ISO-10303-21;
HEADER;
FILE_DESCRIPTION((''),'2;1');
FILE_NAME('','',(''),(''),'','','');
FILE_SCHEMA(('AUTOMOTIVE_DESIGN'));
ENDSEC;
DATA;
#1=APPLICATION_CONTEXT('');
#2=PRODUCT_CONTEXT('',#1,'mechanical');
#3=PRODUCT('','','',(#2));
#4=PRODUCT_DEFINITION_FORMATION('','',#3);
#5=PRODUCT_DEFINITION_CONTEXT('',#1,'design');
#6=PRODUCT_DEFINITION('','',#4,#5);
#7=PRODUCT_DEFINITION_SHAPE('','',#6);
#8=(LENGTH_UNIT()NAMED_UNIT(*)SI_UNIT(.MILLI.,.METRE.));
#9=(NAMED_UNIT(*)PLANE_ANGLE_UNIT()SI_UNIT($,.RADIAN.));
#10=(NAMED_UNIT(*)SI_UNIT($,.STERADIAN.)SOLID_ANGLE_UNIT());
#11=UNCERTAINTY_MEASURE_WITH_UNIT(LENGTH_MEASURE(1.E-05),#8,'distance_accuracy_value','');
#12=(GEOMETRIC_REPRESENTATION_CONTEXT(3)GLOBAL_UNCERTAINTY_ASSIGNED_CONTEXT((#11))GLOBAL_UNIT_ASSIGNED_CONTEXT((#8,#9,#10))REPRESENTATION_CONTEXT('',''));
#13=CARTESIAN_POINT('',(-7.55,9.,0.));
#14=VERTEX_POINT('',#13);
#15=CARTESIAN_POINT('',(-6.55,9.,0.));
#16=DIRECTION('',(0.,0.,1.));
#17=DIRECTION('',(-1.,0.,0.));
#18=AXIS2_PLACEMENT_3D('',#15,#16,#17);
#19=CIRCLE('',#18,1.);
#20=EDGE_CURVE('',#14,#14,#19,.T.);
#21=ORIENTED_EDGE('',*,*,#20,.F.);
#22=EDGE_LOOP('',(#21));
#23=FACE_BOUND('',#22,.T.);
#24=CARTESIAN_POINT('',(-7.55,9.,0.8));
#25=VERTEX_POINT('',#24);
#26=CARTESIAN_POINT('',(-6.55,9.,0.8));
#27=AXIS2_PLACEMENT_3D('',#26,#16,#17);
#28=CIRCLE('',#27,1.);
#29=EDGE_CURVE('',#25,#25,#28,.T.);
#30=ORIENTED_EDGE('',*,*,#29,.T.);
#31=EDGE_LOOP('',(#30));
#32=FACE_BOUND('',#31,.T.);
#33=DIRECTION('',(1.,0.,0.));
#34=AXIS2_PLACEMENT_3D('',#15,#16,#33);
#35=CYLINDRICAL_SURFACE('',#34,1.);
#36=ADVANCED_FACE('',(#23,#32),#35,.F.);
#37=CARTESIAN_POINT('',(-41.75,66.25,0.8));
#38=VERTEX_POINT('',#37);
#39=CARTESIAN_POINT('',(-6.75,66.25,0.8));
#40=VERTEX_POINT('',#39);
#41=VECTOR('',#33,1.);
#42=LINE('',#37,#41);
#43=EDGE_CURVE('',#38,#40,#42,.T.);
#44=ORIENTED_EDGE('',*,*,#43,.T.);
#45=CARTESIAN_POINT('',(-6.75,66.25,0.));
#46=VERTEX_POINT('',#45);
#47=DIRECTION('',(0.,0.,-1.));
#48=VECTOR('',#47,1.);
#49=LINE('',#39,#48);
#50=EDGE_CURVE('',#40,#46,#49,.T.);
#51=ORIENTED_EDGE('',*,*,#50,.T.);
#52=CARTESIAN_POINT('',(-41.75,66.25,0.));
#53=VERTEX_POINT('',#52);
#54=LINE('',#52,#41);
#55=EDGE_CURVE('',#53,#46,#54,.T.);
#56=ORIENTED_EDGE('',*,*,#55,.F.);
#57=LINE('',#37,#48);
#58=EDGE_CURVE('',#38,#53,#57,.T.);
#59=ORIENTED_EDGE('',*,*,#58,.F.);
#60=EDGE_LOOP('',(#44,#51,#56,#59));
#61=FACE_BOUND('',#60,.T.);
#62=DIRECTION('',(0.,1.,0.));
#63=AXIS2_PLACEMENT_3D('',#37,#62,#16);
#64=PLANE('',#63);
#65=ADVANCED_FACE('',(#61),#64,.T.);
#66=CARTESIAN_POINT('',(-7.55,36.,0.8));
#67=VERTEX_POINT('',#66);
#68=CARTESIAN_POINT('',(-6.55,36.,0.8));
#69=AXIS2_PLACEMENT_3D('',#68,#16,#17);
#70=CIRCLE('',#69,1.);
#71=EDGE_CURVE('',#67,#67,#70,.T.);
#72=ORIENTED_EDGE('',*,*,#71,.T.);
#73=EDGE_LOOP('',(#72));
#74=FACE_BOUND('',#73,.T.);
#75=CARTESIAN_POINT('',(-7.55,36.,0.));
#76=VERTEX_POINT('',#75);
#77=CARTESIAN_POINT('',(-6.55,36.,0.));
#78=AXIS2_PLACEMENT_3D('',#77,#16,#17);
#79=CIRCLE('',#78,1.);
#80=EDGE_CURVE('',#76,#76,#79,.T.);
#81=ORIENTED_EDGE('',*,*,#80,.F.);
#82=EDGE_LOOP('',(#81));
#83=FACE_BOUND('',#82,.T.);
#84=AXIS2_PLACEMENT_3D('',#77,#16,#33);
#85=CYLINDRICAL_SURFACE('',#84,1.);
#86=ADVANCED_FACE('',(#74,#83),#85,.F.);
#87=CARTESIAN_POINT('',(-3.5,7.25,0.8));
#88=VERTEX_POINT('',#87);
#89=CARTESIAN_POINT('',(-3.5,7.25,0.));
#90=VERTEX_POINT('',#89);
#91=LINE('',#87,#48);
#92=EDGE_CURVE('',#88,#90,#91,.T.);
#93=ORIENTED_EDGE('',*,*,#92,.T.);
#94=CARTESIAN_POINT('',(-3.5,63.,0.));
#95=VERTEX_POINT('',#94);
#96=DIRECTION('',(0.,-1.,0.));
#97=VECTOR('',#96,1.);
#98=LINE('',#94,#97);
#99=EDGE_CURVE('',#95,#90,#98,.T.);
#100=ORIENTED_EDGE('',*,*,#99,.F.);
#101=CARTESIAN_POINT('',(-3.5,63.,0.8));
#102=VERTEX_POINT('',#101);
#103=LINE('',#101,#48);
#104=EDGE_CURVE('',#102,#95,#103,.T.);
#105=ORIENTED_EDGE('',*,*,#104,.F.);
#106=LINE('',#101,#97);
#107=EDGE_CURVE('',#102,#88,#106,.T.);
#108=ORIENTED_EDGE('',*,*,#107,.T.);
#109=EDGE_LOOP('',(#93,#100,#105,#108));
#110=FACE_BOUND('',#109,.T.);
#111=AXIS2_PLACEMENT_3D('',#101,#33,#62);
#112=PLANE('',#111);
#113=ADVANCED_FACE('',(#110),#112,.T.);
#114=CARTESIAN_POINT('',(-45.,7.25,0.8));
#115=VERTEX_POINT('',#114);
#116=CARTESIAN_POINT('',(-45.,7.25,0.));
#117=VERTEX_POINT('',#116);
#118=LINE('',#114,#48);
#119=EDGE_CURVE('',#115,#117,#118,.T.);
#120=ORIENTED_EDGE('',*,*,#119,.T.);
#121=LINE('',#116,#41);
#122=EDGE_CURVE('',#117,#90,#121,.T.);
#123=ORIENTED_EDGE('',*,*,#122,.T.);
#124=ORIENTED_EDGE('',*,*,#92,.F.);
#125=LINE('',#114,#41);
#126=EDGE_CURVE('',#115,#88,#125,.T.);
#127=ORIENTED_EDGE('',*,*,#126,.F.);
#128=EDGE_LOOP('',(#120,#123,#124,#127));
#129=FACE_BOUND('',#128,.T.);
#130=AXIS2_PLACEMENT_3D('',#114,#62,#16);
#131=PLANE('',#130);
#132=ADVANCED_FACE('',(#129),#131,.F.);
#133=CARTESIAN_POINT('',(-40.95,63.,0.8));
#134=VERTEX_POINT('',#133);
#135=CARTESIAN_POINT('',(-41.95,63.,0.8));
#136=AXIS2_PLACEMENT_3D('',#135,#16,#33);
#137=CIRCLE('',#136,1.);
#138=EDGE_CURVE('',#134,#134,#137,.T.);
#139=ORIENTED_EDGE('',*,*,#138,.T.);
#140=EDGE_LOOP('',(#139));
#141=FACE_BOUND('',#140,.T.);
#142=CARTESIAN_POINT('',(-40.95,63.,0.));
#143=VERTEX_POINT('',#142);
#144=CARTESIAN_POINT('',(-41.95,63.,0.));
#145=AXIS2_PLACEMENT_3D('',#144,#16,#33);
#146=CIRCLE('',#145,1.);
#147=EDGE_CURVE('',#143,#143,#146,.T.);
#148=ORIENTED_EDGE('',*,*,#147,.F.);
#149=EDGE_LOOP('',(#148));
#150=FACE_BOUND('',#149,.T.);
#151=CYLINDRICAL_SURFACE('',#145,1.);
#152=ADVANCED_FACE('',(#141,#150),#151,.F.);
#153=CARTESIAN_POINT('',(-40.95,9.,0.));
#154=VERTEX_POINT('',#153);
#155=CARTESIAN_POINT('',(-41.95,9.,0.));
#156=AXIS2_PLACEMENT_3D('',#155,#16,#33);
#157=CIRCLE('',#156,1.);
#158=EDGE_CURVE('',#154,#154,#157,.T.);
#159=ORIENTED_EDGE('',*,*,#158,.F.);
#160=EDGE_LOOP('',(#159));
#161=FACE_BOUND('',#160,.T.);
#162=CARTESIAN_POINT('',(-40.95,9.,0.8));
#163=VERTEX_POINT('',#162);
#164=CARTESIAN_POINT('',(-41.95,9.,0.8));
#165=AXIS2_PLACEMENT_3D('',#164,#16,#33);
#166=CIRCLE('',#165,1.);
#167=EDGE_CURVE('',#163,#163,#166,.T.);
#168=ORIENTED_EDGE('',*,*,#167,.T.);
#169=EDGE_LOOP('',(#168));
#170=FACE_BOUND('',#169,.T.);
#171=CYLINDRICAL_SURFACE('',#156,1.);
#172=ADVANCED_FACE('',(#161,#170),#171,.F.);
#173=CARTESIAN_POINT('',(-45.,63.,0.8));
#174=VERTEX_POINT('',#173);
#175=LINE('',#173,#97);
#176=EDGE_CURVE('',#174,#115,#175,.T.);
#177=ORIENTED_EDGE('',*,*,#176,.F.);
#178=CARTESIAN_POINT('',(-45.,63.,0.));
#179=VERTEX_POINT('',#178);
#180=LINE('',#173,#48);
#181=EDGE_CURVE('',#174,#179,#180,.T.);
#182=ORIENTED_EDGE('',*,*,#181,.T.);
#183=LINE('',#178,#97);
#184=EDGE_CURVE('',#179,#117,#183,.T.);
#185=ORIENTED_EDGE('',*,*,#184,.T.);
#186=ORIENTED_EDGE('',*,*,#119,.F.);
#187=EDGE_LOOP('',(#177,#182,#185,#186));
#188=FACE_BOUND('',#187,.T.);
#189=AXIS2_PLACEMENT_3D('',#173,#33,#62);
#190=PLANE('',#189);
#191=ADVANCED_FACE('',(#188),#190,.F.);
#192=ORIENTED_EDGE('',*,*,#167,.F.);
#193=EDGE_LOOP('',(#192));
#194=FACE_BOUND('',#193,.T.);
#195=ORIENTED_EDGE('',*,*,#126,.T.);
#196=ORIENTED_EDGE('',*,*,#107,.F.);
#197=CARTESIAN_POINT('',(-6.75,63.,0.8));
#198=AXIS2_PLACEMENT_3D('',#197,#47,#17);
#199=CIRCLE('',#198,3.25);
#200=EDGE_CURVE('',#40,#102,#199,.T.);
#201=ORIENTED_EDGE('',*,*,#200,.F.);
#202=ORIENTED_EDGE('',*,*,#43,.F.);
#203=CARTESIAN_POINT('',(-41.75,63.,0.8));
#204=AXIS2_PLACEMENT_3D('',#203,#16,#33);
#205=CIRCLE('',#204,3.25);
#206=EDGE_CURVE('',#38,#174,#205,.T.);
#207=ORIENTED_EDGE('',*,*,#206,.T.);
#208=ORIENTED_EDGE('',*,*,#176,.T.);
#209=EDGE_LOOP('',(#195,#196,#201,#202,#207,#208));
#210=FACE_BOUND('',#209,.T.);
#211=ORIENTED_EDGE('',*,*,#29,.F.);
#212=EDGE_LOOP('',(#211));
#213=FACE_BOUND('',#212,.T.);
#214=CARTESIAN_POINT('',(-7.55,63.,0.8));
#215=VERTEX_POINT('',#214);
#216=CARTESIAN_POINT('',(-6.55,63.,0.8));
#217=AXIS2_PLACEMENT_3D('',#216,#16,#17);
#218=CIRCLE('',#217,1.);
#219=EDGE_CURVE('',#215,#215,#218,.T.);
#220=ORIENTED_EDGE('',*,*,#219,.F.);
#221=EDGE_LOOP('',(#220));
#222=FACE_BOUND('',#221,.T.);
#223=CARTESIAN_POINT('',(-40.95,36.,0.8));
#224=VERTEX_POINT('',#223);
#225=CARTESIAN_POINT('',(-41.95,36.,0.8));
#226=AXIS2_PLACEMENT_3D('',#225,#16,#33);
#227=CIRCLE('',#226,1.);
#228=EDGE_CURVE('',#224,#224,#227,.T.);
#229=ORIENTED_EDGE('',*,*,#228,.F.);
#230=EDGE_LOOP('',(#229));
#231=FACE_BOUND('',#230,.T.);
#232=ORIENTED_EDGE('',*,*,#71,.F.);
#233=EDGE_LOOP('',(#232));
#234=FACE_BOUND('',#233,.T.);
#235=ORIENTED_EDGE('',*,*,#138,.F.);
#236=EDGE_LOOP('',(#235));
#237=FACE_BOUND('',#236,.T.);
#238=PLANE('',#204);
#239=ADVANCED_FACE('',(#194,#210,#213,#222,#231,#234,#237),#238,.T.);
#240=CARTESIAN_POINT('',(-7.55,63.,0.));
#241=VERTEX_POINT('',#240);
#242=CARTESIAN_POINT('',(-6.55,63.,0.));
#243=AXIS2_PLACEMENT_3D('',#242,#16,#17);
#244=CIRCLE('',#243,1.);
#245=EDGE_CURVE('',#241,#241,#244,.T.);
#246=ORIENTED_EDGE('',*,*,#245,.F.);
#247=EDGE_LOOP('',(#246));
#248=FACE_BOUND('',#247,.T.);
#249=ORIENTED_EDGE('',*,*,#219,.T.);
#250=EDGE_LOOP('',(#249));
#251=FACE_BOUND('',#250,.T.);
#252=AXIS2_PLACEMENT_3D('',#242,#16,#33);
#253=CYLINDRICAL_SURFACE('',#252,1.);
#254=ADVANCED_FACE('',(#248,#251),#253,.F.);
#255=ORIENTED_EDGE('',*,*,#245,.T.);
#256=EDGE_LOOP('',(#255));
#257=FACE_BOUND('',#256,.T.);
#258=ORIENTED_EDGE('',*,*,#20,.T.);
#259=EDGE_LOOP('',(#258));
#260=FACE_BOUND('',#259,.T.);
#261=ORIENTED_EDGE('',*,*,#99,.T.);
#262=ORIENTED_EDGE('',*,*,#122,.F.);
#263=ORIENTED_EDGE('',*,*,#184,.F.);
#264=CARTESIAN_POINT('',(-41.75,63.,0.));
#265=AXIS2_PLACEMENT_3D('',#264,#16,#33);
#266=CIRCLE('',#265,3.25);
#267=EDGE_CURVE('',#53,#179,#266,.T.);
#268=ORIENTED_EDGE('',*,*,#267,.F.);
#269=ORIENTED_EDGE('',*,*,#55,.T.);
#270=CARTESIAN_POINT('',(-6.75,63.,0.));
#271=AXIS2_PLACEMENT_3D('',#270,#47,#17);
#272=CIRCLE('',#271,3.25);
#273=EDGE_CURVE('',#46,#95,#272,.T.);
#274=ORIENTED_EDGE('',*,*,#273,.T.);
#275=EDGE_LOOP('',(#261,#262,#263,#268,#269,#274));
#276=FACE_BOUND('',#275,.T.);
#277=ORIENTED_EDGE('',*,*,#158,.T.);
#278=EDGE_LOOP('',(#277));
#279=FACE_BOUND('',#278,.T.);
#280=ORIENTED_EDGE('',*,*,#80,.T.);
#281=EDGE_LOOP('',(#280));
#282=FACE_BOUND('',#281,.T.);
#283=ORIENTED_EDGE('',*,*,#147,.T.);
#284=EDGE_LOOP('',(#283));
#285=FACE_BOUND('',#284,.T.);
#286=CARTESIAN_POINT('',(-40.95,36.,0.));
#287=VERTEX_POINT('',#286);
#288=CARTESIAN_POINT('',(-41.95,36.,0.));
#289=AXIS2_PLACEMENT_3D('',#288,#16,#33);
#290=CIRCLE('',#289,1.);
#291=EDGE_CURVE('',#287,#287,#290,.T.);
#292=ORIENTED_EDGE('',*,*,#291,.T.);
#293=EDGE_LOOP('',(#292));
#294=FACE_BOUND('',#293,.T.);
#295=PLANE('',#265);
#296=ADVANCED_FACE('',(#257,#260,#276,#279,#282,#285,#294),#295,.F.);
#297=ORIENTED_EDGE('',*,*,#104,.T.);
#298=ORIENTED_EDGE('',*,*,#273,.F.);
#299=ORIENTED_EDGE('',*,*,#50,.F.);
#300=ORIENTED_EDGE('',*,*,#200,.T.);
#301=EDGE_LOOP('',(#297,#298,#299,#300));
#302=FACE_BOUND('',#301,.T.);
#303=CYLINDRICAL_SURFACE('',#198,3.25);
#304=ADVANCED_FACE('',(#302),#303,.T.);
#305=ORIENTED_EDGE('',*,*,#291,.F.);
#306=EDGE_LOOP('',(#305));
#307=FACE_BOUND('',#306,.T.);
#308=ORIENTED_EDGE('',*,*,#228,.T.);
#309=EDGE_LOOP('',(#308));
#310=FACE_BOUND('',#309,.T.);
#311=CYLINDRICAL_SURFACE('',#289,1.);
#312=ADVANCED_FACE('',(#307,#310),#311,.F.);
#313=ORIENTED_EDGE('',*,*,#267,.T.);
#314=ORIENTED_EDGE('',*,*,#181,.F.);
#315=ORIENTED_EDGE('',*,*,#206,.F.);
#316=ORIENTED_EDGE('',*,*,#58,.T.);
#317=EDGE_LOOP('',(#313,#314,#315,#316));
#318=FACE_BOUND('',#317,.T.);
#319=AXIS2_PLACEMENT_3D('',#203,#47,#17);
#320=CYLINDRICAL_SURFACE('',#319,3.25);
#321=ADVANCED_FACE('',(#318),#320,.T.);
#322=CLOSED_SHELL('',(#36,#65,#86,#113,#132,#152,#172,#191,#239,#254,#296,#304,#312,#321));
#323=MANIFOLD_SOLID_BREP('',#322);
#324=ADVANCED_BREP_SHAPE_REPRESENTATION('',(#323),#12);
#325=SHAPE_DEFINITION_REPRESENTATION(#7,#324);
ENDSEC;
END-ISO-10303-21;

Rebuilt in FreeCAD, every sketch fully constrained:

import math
import FreeCAD as App
import Part
import Sketcher

V = App.Vector
Q = App.Units.Quantity

doc = App.newDocument("Part")
body = doc.addObject("PartDesign::Body", "Body")

# Sketch on XY plane
sketch1 = body.newObject("Sketcher::SketchObject", "Sketch")
sketch1.AttachmentSupport = (doc.getObject("XY_Plane"), [""])
sketch1.MapMode = "FlatFace"
sketch1.addGeometry([
    Part.LineSegment(V(-6.75, 66.25, 0), V(-41.75, 66.25, 0)),  # 0
    Part.ArcOfCircle(Part.Circle(V(-41.75, 63, 0), V(0, 0, 1), 3.25), math.radians(90), math.radians(180)),  # 1
    Part.LineSegment(V(-45, 63, 0), V(-45, 7.25, 0)),  # 2
    Part.LineSegment(V(-45, 7.25, 0), V(-3.5, 7.25, 0)),  # 3
    Part.LineSegment(V(-3.5, 7.25, 0), V(-3.5, 63, 0)),  # 4
    Part.ArcOfCircle(Part.Circle(V(-6.75, 63, 0), V(0, 0, 1), 3.25), math.radians(0), math.radians(90)),  # 5
], False)
sketch1.addConstraint([
    Sketcher.Constraint("Tangent", 0, 2, 1, 1),
    Sketcher.Constraint("Tangent", 1, 2, 2, 1),
    Sketcher.Constraint("Coincident", 2, 2, 3, 1),
    Sketcher.Constraint("Coincident", 3, 2, 4, 1),
    Sketcher.Constraint("Tangent", 4, 2, 5, 1),
    Sketcher.Constraint("Tangent", 5, 2, 0, 1),
    Sketcher.Constraint("Horizontal", 0),
    Sketcher.Constraint("Vertical", 2),
    Sketcher.Constraint("Horizontal", 3),
    Sketcher.Constraint("Vertical", 4),
    Sketcher.Constraint("Equal", 1, 5),
    Sketcher.Constraint("DistanceX", 0, 2, 0, 1, Q("35 mm")),
    Sketcher.Constraint("Radius", 1, Q("3.25 mm")),
    Sketcher.Constraint("DistanceY", -1, 1, 1, 3, Q("63 mm")),
    Sketcher.Constraint("DistanceX", 1, 2, -1, 1, Q("45 mm")),
    Sketcher.Constraint("DistanceY", 2, 2, 0, 2, Q("59 mm")),
])
pad1 = body.newObject("PartDesign::Pad", "Pad")
pad1.Profile = sketch1
pad1.Length = 0.8

# Sketch on XY plane
sketch2 = body.newObject("Sketcher::SketchObject", "Sketch001")
sketch2.AttachmentSupport = (doc.getObject("XY_Plane"), [""])
sketch2.MapMode = "FlatFace"
sketch2.AttachmentOffset = App.Placement(V(0, 0, 0.8), App.Rotation())
sketch2.addGeometry([
    Part.Circle(V(-41.95, 63, 0), V(0, 0, 1), 1),  # 0
    Part.Circle(V(-41.95, 36, 0), V(0, 0, 1), 1),  # 1
    Part.Circle(V(-41.95, 9, 0), V(0, 0, 1), 1),  # 2
    Part.Circle(V(-6.55, 9, 0), V(0, 0, 1), 1),  # 3
    Part.Circle(V(-6.55, 36, 0), V(0, 0, 1), 1),  # 4
    Part.Circle(V(-6.55, 63, 0), V(0, 0, 1), 1),  # 5
], False)
sketch2.addConstraint([
    Sketcher.Constraint("Equal", 0, 1),
    Sketcher.Constraint("Equal", 1, 2),
    Sketcher.Constraint("Equal", 2, 3),
    Sketcher.Constraint("Equal", 3, 4),
    Sketcher.Constraint("Equal", 4, 5),
    Sketcher.Constraint("Horizontal", 2, 3, 3, 3),
    Sketcher.Constraint("Horizontal", 1, 3, 4, 3),
    Sketcher.Constraint("Horizontal", 0, 3, 5, 3),
    Sketcher.Constraint("Vertical", 0, 3, 1, 3),
    Sketcher.Constraint("Vertical", 1, 3, 2, 3),
    Sketcher.Constraint("Vertical", 3, 3, 4, 3),
    Sketcher.Constraint("Vertical", 4, 3, 5, 3),
    Sketcher.Constraint("Diameter", 0, Q("2 mm")),
    Sketcher.Constraint("DistanceY", -1, 1, 0, 3, Q("63 mm")),
    Sketcher.Constraint("DistanceY", -1, 1, 1, 3, Q("36 mm")),
    Sketcher.Constraint("DistanceY", -1, 1, 2, 3, Q("9 mm")),
    Sketcher.Constraint("DistanceX", 2, 3, 3, 3, Q("35.4 mm")),
    Sketcher.Constraint("DistanceX", 0, 3, -1, 1, Q("41.95 mm")),
])
pocket1 = body.newObject("PartDesign::Pocket", "Pocket")
pocket1.Profile = sketch2
pocket1.Type = "ThroughAll"

doc.recompute()
